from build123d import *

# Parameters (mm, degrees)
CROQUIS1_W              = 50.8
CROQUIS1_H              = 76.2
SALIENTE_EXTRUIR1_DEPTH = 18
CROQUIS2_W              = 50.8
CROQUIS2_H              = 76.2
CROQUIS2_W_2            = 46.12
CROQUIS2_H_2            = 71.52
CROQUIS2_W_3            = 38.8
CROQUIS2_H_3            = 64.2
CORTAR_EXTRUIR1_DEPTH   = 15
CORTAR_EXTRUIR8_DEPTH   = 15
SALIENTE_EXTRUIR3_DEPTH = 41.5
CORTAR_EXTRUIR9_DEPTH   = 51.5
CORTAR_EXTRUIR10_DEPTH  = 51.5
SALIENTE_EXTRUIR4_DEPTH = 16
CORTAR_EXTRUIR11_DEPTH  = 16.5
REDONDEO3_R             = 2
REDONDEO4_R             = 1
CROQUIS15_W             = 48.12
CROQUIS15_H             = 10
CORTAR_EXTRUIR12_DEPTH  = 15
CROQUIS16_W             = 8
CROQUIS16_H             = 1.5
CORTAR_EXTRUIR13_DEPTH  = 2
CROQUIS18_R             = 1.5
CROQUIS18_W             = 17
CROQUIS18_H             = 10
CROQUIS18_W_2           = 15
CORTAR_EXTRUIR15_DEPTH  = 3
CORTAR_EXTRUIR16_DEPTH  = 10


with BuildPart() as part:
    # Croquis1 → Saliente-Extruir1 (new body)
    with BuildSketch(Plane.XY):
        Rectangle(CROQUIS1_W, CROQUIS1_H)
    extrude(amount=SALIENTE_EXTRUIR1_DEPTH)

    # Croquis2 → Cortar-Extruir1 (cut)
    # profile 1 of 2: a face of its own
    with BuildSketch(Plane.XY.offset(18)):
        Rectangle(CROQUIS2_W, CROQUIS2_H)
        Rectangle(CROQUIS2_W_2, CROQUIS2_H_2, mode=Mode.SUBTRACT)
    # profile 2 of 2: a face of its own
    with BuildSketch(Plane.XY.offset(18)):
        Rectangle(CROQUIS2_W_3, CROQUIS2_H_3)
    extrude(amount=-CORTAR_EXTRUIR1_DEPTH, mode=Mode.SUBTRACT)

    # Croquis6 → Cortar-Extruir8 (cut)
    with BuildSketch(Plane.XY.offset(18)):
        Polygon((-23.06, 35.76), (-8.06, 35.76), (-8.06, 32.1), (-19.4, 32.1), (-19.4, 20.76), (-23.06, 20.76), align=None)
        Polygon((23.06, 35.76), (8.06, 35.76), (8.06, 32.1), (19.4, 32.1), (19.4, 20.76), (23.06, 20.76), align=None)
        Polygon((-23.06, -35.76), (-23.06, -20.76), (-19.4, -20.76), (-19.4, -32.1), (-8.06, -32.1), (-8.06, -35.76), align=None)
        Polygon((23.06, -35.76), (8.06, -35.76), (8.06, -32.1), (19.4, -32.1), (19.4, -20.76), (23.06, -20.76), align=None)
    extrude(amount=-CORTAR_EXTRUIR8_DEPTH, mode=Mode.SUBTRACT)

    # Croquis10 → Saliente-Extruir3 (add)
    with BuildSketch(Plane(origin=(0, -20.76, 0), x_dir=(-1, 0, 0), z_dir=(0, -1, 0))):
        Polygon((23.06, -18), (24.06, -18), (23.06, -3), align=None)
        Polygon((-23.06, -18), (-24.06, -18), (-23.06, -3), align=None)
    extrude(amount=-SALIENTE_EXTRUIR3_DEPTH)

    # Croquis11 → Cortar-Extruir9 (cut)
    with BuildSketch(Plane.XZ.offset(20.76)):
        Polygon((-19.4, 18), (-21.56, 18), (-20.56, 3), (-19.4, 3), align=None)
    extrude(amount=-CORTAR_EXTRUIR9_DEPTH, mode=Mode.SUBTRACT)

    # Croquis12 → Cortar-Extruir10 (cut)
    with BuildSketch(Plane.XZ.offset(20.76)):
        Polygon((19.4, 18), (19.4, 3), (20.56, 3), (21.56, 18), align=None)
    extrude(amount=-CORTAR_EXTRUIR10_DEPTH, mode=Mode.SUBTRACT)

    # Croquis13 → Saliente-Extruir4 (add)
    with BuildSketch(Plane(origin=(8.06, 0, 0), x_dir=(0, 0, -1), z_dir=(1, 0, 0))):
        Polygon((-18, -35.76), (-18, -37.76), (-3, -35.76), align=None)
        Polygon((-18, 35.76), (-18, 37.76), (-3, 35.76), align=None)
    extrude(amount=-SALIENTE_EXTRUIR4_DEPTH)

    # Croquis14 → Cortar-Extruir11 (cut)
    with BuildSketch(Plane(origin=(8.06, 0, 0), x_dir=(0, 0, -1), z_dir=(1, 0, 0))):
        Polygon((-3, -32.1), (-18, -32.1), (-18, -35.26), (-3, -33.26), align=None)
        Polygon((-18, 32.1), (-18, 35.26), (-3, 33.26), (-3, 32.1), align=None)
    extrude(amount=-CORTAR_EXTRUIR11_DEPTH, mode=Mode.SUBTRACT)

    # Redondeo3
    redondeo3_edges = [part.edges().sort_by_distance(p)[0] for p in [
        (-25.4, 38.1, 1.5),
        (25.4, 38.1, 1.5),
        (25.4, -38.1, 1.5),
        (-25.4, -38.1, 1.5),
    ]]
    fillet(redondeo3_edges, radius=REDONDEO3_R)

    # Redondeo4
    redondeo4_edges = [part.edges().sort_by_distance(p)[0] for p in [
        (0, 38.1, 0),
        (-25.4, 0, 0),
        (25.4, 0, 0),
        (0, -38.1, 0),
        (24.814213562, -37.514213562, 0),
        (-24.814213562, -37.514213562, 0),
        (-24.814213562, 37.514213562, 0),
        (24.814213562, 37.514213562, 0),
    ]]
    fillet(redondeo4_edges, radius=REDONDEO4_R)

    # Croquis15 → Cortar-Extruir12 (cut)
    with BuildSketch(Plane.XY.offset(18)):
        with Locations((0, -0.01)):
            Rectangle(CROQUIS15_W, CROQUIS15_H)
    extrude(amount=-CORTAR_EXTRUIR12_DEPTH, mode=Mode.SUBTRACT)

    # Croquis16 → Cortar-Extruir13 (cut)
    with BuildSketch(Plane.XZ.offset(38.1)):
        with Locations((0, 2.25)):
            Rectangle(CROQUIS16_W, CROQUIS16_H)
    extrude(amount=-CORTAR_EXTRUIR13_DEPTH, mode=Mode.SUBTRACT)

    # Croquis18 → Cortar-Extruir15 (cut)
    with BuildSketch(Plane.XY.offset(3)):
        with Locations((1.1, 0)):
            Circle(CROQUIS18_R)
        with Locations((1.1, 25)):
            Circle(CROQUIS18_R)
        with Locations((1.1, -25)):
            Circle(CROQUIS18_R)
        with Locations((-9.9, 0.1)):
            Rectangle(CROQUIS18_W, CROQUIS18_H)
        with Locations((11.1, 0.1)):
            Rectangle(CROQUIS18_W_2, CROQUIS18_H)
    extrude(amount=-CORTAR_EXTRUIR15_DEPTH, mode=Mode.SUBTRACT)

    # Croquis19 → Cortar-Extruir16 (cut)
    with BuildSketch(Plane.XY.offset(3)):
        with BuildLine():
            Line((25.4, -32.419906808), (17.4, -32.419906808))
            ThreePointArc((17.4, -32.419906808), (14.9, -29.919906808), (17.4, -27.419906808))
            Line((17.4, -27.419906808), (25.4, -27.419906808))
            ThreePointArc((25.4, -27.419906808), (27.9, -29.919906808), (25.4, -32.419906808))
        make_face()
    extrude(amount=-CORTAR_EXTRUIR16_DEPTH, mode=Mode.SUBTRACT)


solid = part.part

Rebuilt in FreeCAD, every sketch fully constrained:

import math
import FreeCAD as App
import Part
import Sketcher


def edges_at(feature, points):
    """Names of the edges that pass closest to the given points."""
    edges = feature.Shape.Edges
    near = lambda p: min(range(len(edges)), key=lambda i: edges[i].distToShape(Part.Vertex(*p))[0])
    return sorted({f"Edge{near(p) + 1}" for p in points})


def add_polygon(sketch, points):
    """Adds a closed chain of lines whose ends are joined by coincident constraints."""
    first, n = sketch.GeometryCount, len(points)
    for a, b in zip(points, points[1:] + points[:1]):
        sketch.addGeometry(Part.LineSegment(App.Vector(*a, 0), App.Vector(*b, 0)), False)
    for i in range(n):
        sketch.addConstraint(Sketcher.Constraint("Coincident", first + i, 2, first + (i + 1) % n, 1))

doc = App.newDocument("Part")
body = doc.addObject("PartDesign::Body", "Body")

# Sketch on XY plane
sketch1 = body.newObject("Sketcher::SketchObject", "Sketch")
sketch1.AttachmentSupport = (doc.getObject("XY_Plane"), [""])
sketch1.MapMode = "FlatFace"
add_polygon(sketch1, [(-25, 38), (-25, -38), (25, -38), (25, 38)])  # lines 0-3
sketch1.addConstraint([
    Sketcher.Constraint("Vertical", 0),
    Sketcher.Constraint("Horizontal", 1),
    Sketcher.Constraint("Vertical", 2),
    Sketcher.Constraint("Horizontal", 3),
    Sketcher.Constraint("Symmetric", 0, 2, 2, 2, -1, 1),
    Sketcher.Constraint("DistanceX", 1, 1, 1, 2, 50.8),
    Sketcher.Constraint("DistanceY", 0, 2, 0, 1, 76.2),
])
pad1 = body.newObject("PartDesign::Pad", "Pad")
pad1.Profile = sketch1
pad1.Length = 18

# Sketch on XY plane
sketch2 = body.newObject("Sketcher::SketchObject", "Sketch001")
sketch2.AttachmentSupport = (doc.getObject("XY_Plane"), [""])
sketch2.MapMode = "FlatFace"
sketch2.AttachmentOffset = App.Placement(App.Vector(0, 0, 18), App.Rotation())
add_polygon(sketch2, [(-25, 38), (-25, -38), (25, -38), (25, 38)])  # lines 0-3
add_polygon(sketch2, [(23, -36), (-23, -36), (-23, 36), (23, 36)])  # lines 4-7
add_polygon(sketch2, [(-19, 32), (-19, -32), (19, -32), (19, 32)])  # lines 8-11
sketch2.addConstraint([
    Sketcher.Constraint("Vertical", 0),
    Sketcher.Constraint("Horizontal", 1),
    Sketcher.Constraint("Vertical", 2),
    Sketcher.Constraint("Horizontal", 3),
    Sketcher.Constraint("Horizontal", 4),
    Sketcher.Constraint("Vertical", 5),
    Sketcher.Constraint("Horizontal", 6),
    Sketcher.Constraint("Vertical", 7),
    Sketcher.Constraint("Vertical", 8),
    Sketcher.Constraint("Horizontal", 9),
    Sketcher.Constraint("Vertical", 10),
    Sketcher.Constraint("Horizontal", 11),
    Sketcher.Constraint("Symmetric", 0, 2, 2, 2, -1, 1),
    Sketcher.Constraint("Symmetric", 4, 2, 6, 2, -1, 1),
    Sketcher.Constraint("Symmetric", 8, 2, 10, 2, -1, 1),
    Sketcher.Constraint("DistanceX", 1, 1, 1, 2, 50.8),
    Sketcher.Constraint("DistanceX", 9, 1, 9, 2, 38.8),
    Sketcher.Constraint("DistanceY", 0, 2, 0, 1, 76.2),
    Sketcher.Constraint("DistanceY", 8, 2, 8, 1, 64.2),
    Sketcher.Constraint("DistanceX", 4, 2, 4, 1, 46.12),
    Sketcher.Constraint("DistanceY", 5, 1, 5, 2, 71.52),
])
pocket1 = body.newObject("PartDesign::Pocket", "Pocket")
pocket1.Profile = sketch2
pocket1.Length = 15

# Sketch on XY plane
sketch3 = body.newObject("Sketcher::SketchObject", "Sketch002")
sketch3.AttachmentSupport = (doc.getObject("XY_Plane"), [""])
sketch3.MapMode = "FlatFace"
sketch3.AttachmentOffset = App.Placement(App.Vector(0, 0, 18), App.Rotation())
add_polygon(sketch3, [(-8.1, 35.8), (-23.1, 35.8), (-23.1, 20.8), (-19.4, 20.8), (-19.4, 32.1), (-8.1, 32.1)])  # lines 0-5
add_polygon(sketch3, [(23.1, 35.8), (8.1, 35.8), (8.1, 32.1), (19.4, 32.1), (19.4, 20.8), (23.1, 20.8)])  # lines 6-11
add_polygon(sketch3, [(-23.1, -20.8), (-23.1, -35.8), (-8.1, -35.8), (-8.1, -32.1), (-19.4, -32.1), (-19.4, -20.8)])  # lines 12-17
add_polygon(sketch3, [(8.1, -35.8), (23.1, -35.8), (23.1, -20.8), (19.4, -20.8), (19.4, -32.1), (8.1, -32.1)])  # lines 18-23
sketch3.addConstraint([
    Sketcher.Constraint("Horizontal", 0),
    Sketcher.Constraint("Vertical", 1),
    Sketcher.Constraint("Horizontal", 2),
    Sketcher.Constraint("Vertical", 3),
    Sketcher.Constraint("Horizontal", 4),
    Sketcher.Constraint("Vertical", 5),
    Sketcher.Constraint("Horizontal", 6),
    Sketcher.Constraint("Vertical", 7),
    Sketcher.Constraint("Horizontal", 8),
    Sketcher.Constraint("Vertical", 9),
    Sketcher.Constraint("Horizontal", 10),
    Sketcher.Constraint("Vertical", 11),
    Sketcher.Constraint("Vertical", 12),
    Sketcher.Constraint("Horizontal", 13),
    Sketcher.Constraint("Vertical", 14),
    Sketcher.Constraint("Horizontal", 15),
    Sketcher.Constraint("Vertical", 16),
    Sketcher.Constraint("Horizontal", 17),
    Sketcher.Constraint("Horizontal", 18),
    Sketcher.Constraint("Vertical", 19),
    Sketcher.Constraint("Horizontal", 20),
    Sketcher.Constraint("Vertical", 21),
    Sketcher.Constraint("Horizontal", 22),
    Sketcher.Constraint("Vertical", 23),
    Sketcher.Constraint("Symmetric", 11, 2, 12, 2, -1, 1),
    Sketcher.Constraint("Symmetric", 7, 2, 14, 2, -1, 1),
    Sketcher.Constraint("Symmetric", 9, 2, 16, 2, -1, 1),
    Sketcher.Constraint("Symmetric", 0, 2, 18, 2, -1, 1),
    Sketcher.Constraint("Symmetric", 2, 2, 20, 2, -1, 1),
    Sketcher.Constraint("Symmetric", 4, 2, 22, 2, -1, 1),
    Sketcher.Constraint("Symmetric", 5, 2, 6, 2, -2),
    Sketcher.Constraint("Symmetric", 3, 2, 8, 2, -2),
    Sketcher.Constraint("Symmetric", 1, 2, 10, 2, -2),
    Sketcher.Constraint("Equal", 18, 1),
    Sketcher.Constraint("Equal", 22, 3),
    Sketcher.Constraint("DistanceX", 0, 2, 0, 1, 15.0),
    Sketcher.Constraint("DistanceX", 2, 1, 2, 2, 3.66),
    Sketcher.Constraint("DistanceX", 2, 2, -1, 1, 19.4),
    Sketcher.Constraint("DistanceY", -1, 1, 3, 2, 32.1),
])
pocket2 = body.newObject("PartDesign::Pocket", "Pocket001")
pocket2.Profile = sketch3
pocket2.Length = 15

# Sketch on XZ plane
sketch4 = body.newObject("Sketcher::SketchObject", "Sketch003")
sketch4.AttachmentSupport = (doc.getObject("XZ_Plane"), [""])
sketch4.MapMode = "FlatFace"
sketch4.AttachmentOffset = App.Placement(App.Vector(0, 0, 20.76), App.Rotation())
add_polygon(sketch4, [(-23.1, 18), (-24.1, 18), (-23.1, 3)])  # lines 0-2
add_polygon(sketch4, [(24.1, 18), (23.1, 18), (23.1, 3)])  # lines 3-5
sketch4.addConstraint([
    Sketcher.Constraint("Horizontal", 0),
    Sketcher.Constraint("Vertical", 2),
    Sketcher.Constraint("Horizontal", 3),
    Sketcher.Constraint("Vertical", 4),
    Sketcher.Constraint("Symmetric", 2, 2, 3, 2, -2),
    Sketcher.Constraint("Horizontal", 1, 2, 4, 2),
    Sketcher.Constraint("Equal", 0, 3),
    Sketcher.Constraint("DistanceX", 0, 2, 0, 1, 1.0),
    Sketcher.Constraint("DistanceY", 2, 1, 2, 2, 15.0),
    Sketcher.Constraint("DistanceY", -1, 1, 0, 2, 18.0),
    Sketcher.Constraint("DistanceX", 0, 2, -1, 1, 24.06),
])
pad2 = body.newObject("PartDesign::Pad", "Pad001")
pad2.Profile = sketch4
pad2.Length = 41.5
pad2.Reversed = True

# Sketch on XZ plane
sketch5 = body.newObject("Sketcher::SketchObject", "Sketch004")
sketch5.AttachmentSupport = (doc.getObject("XZ_Plane"), [""])
sketch5.MapMode = "FlatFace"
sketch5.AttachmentOffset = App.Placement(App.Vector(0, 0, 20.76), App.Rotation())
add_polygon(sketch5, [(-19.4, 18), (-21.6, 18), (-20.6, 3), (-19.4, 3)])  # lines 0-3
sketch5.addConstraint([
    Sketcher.Constraint("Horizontal", 0),
    Sketcher.Constraint("Horizontal", 2),
    Sketcher.Constraint("Vertical", 3),
    Sketcher.Constraint("DistanceY", 3, 1, 3, 2, 15.0),
    Sketcher.Constraint("DistanceY", -1, 1, 0, 2, 18.0),
    Sketcher.Constraint("DistanceX", 0, 2, 1, 2, 1.0),
    Sketcher.Constraint("DistanceX", 0, 2, 0, 1, 2.16),
    Sketcher.Constraint("DistanceX", 2, 2, -1, 1, 19.4),
])
pocket3 = body.newObject("PartDesign::Pocket", "Pocket002")
pocket3.Profile = sketch5
pocket3.Length = 51.5

# Sketch on XZ plane
sketch6 = body.newObject("Sketcher::SketchObject", "Sketch005")
sketch6.AttachmentSupport = (doc.getObject("XZ_Plane"), [""])
sketch6.MapMode = "FlatFace"
sketch6.AttachmentOffset = App.Placement(App.Vector(0, 0, 20.76), App.Rotation())
add_polygon(sketch6, [(19.4, 18), (19.4, 3), (20.6, 3), (21.6, 18)])  # lines 0-3
sketch6.addConstraint([
    Sketcher.Constraint("Vertical", 0),
    Sketcher.Constraint("Horizontal", 1),
    Sketcher.Constraint("Horizontal", 3),
    Sketcher.Constraint("DistanceY", 0, 2, 0, 1, 15.0),
    Sketcher.Constraint("DistanceY", -1, 1, 0, 2, 3.0),
    Sketcher.Constraint("DistanceX", 1, 2, 2, 2, 1.0),
    Sketcher.Constraint("DistanceX", 1, 1, 1, 2, 1.16),
    Sketcher.Constraint("DistanceX", -1, 1, 0, 2, 19.4),
])
pocket4 = body.newObject("PartDesign::Pocket", "Pocket003")
pocket4.Profile = sketch6
pocket4.Length = 51.5

# Sketch on YZ plane
sketch7 = body.newObject("Sketcher::SketchObject", "Sketch006")
sketch7.AttachmentSupport = (doc.getObject("YZ_Plane"), [""])
sketch7.MapMode = "FlatFace"
sketch7.AttachmentOffset = App.Placement(App.Vector(0, 0, 8.06), App.Rotation())
add_polygon(sketch7, [(-35.8, 18), (-37.8, 18), (-35.8, 3)])  # lines 0-2
add_polygon(sketch7, [(37.8, 18), (35.8, 18), (35.8, 3)])  # lines 3-5
sketch7.addConstraint([
    Sketcher.Constraint("Horizontal", 0),
    Sketcher.Constraint("Vertical", 2),
    Sketcher.Constraint("Horizontal", 3),
    Sketcher.Constraint("Vertical", 4),
    Sketcher.Constraint("Symmetric", 2, 2, 3, 2, -2),
    Sketcher.Constraint("Horizontal", 1, 2, 4, 2),
    Sketcher.Constraint("Equal", 0, 3),
    Sketcher.Constraint("DistanceX", 0, 2, 0, 1, 2.0),
    Sketcher.Constraint("DistanceY", 2, 1, 2, 2, 15.0),
    Sketcher.Constraint("DistanceY", -1, 1, 0, 2, 18.0),
    Sketcher.Constraint("DistanceX", 0, 2, -1, 1, 37.76),
])
pad3 = body.newObject("PartDesign::Pad", "Pad002")
pad3.Profile = sketch7
pad3.Length = 16
pad3.Reversed = True

# Sketch on YZ plane
sketch8 = body.newObject("Sketcher::SketchObject", "Sketch007")
sketch8.AttachmentSupport = (doc.getObject("YZ_Plane"), [""])
sketch8.MapMode = "FlatFace"
sketch8.AttachmentOffset = App.Placement(App.Vector(0, 0, 8.06), App.Rotation())
add_polygon(sketch8, [(-32.1, 3), (-32.1, 18), (-35.3, 18), (-33.3, 3)])  # lines 0-3
add_polygon(sketch8, [(35.3, 18), (32.1, 18), (32.1, 3), (33.3, 3)])  # lines 4-7
sketch8.addConstraint([
    Sketcher.Constraint("Vertical", 0),
    Sketcher.Constraint("Horizontal", 1),
    Sketcher.Constraint("Horizontal", 3),
    Sketcher.Constraint("Horizontal", 4),
    Sketcher.Constraint("Vertical", 5),
    Sketcher.Constraint("Horizontal", 6),
    Sketcher.Constraint("Symmetric", 0, 2, 4, 2, -2),
    Sketcher.Constraint("Symmetric", 2, 2, 6, 2, -2),
    Sketcher.Constraint("Equal", 1, 4),
    Sketcher.Constraint("DistanceY", 0, 1, 0, 2, 15.0),
    Sketcher.Constraint("DistanceY", -1, 1, 0, 2, 18.0),
    Sketcher.Constraint("DistanceX", 1, 2, 2, 2, 2.0),
    Sketcher.Constraint("DistanceX", 1, 2, 1, 1, 3.16),
    Sketcher.Constraint("DistanceX", 0, 2, -1, 1, 32.1),
])
pocket5 = body.newObject("PartDesign::Pocket", "Pocket004")
pocket5.Profile = sketch8
pocket5.Length = 16.5
doc.recompute()

fillet = body.newObject("PartDesign::Fillet", "Fillet")
fillet.Base = (pocket5, edges_at(pocket5, [
    (-25.4, 38.1, 1.5),
    (25.4, 38.1, 1.5),
    (25.4, -38.1, 1.5),
    (-25.4, -38.1, 1.5),
]))
fillet.Radius = 2
doc.recompute()

fillet2 = body.newObject("PartDesign::Fillet", "Fillet001")
fillet2.Base = (fillet, edges_at(fillet, [
    (0, 38.1, 0),
    (-25.4, 0, 0),
    (25.4, 0, 0),
    (0, -38.1, 0),
    (24.814, -37.514, 0),
    (-24.814, -37.514, 0),
    (-24.814, 37.514, 0),
    (24.814, 37.514, 0),
]))
fillet2.Radius = 1

# Sketch on XY plane
sketch9 = body.newObject("Sketcher::SketchObject", "Sketch008")
sketch9.AttachmentSupport = (doc.getObject("XY_Plane"), [""])
sketch9.MapMode = "FlatFace"
sketch9.AttachmentOffset = App.Placement(App.Vector(0, 0, 18), App.Rotation())
add_polygon(sketch9, [(-24, 5), (-24, -5), (24, -5), (24, 5)])  # lines 0-3
sketch9.addConstraint([
    Sketcher.Constraint("Vertical", 0),
    Sketcher.Constraint("Horizontal", 1),
    Sketcher.Constraint("Vertical", 2),
    Sketcher.Constraint("Horizontal", 3),
    Sketcher.Constraint("DistanceY", 0, 2, 0, 1, 10.0),
    Sketcher.Constraint("DistanceX", 1, 1, 1, 2, 48.12),
    Sketcher.Constraint("DistanceX", 0, 2, -1, 1, 24.06),
    Sketcher.Constraint("DistanceY", 0, 2, -1, 1, 5.01),
])
pocket6 = body.newObject("PartDesign::Pocket", "Pocket005")
pocket6.Profile = sketch9
pocket6.Length = 15

# Sketch on XZ plane
sketch10 = body.newObject("Sketcher::SketchObject", "Sketch009")
sketch10.AttachmentSupport = (doc.getObject("XZ_Plane"), [""])
sketch10.MapMode = "FlatFace"
sketch10.AttachmentOffset = App.Placement(App.Vector(0, 0, 38.1), App.Rotation())
add_polygon(sketch10, [(-4, 3), (-4, 1.5), (4, 1.5), (4, 3)])  # lines 0-3
sketch10.addConstraint([
    Sketcher.Constraint("Vertical", 0),
    Sketcher.Constraint("Horizontal", 1),
    Sketcher.Constraint("Vertical", 2),
    Sketcher.Constraint("Horizontal", 3),
    Sketcher.Constraint("DistanceX", 1, 1, 1, 2, 8.0),
    Sketcher.Constraint("DistanceY", 0, 2, 0, 1, 1.5),
    Sketcher.Constraint("DistanceX", 0, 2, -1, 1, 4.0),
    Sketcher.Constraint("DistanceY", -1, 1, 2, 2, 3.0),
])
pocket7 = body.newObject("PartDesign::Pocket", "Pocket006")
pocket7.Profile = sketch10
pocket7.Length = 2

# Sketch on XY plane
sketch11 = body.newObject("Sketcher::SketchObject", "Sketch010")
sketch11.AttachmentSupport = (doc.getObject("XY_Plane"), [""])
sketch11.MapMode = "FlatFace"
sketch11.AttachmentOffset = App.Placement(App.Vector(0, 0, 3), App.Rotation())
sketch11.addGeometry(Part.Circle(App.Vector(1.1, 0, 0), App.Vector(0, 0, 1), 1.5), False)  # 0
sketch11.addGeometry(Part.Circle(App.Vector(1.1, 25, 0), App.Vector(0, 0, 1), 1.5), False)  # 1
sketch11.addGeometry(Part.Circle(App.Vector(1.1, -25, 0), App.Vector(0, 0, 1), 1.5), False)  # 2
add_polygon(sketch11, [(-18.4, 5.1), (-18.4, -4.9), (-1.4, -4.9), (-1.4, 5.1)])  # lines 3-6
add_polygon(sketch11, [(3.6, 5.1), (3.6, -4.9), (18.6, -4.9), (18.6, 5.1)])  # lines 7-10
sketch11.addConstraint([
    Sketcher.Constraint("Vertical", 3),
    Sketcher.Constraint("Horizontal", 4),
    Sketcher.Constraint("Vertical", 5),
    Sketcher.Constraint("Horizontal", 6),
    Sketcher.Constraint("Vertical", 7),
    Sketcher.Constraint("Horizontal", 8),
    Sketcher.Constraint("Vertical", 9),
    Sketcher.Constraint("Horizontal", 10),
    Sketcher.Constraint("Equal", 0, 1),
    Sketcher.Constraint("Equal", 1, 2),
    Sketcher.Constraint("Symmetric", 1, 3, 2, 3, -1),
    Sketcher.Constraint("PointOnObject", 0, 3, -1),
    Sketcher.Constraint("Horizontal", 4, 2, 7, 2),
    Sketcher.Constraint("Horizontal", 6, 2, 9, 2),
    Sketcher.Constraint("Vertical", 0, 3, 1, 3),
    Sketcher.Constraint("Diameter", 0, 3.0),
    Sketcher.Constraint("DistanceX", 4, 1, 4, 2, 17.0),
    Sketcher.Constraint("DistanceX", 8, 1, 8, 2, 15.0),
    Sketcher.Constraint("DistanceY", 3, 2, 3, 1, 10.0),
    Sketcher.Constraint("DistanceY", -1, 1, 1, 3, 25.0),
    Sketcher.Constraint("DistanceX", 4, 2, 7, 2, 5.0),
    Sketcher.Constraint("DistanceX", -1, 1, 0, 3, 1.1),
    Sketcher.Constraint("DistanceX", 3, 2, -1, 1, 18.4),
    Sketcher.Constraint("DistanceY", 3, 2, -1, 1, 4.9),
])
pocket8 = body.newObject("PartDesign::Pocket", "Pocket007")
pocket8.Profile = sketch11
pocket8.Length = 3

# Sketch on XY plane
sketch12 = body.newObject("Sketcher::SketchObject", "Sketch011")
sketch12.AttachmentSupport = (doc.getObject("XY_Plane"), [""])
sketch12.MapMode = "FlatFace"
sketch12.AttachmentOffset = App.Placement(App.Vector(0, 0, 3), App.Rotation())
sketch12.addGeometry([
    Part.LineSegment(App.Vector(17.4, -32.4, 0), App.Vector(25.4, -32.4, 0)),
    Part.ArcOfCircle(Part.Circle(App.Vector(25.4, -29.9, 0), App.Vector(0, 0, 1), 2.5), math.radians(-90), math.radians(90)),
    Part.LineSegment(App.Vector(25.4, -27.4, 0), App.Vector(17.4, -27.4, 0)),
    Part.ArcOfCircle(Part.Circle(App.Vector(17.4, -29.9, 0), App.Vector(0, 0, 1), 2.5), math.radians(90), math.radians(270)),
], False)
sketch12.addConstraint([
    Sketcher.Constraint("Tangent", 0, 2, 1, 1),
    Sketcher.Constraint("Tangent", 1, 2, 2, 1),
    Sketcher.Constraint("Tangent", 2, 2, 3, 1),
    Sketcher.Constraint("Tangent", 3, 2, 0, 1),
    Sketcher.Constraint("Horizontal", 0),
    Sketcher.Constraint("Horizontal", 2),
    Sketcher.Constraint("Radius", 1, 2.5),
    Sketcher.Constraint("DistanceX", 0, 1, 0, 2, 8.0),
    Sketcher.Constraint("DistanceX", -1, 1, 1, 3, 25.4),
    Sketcher.Constraint("DistanceY", 1, 3, -1, 1, 29.919907),
])
pocket9 = body.newObject("PartDesign::Pocket", "Pocket008")
pocket9.Profile = sketch12
pocket9.Length = 10

doc.recompute()
